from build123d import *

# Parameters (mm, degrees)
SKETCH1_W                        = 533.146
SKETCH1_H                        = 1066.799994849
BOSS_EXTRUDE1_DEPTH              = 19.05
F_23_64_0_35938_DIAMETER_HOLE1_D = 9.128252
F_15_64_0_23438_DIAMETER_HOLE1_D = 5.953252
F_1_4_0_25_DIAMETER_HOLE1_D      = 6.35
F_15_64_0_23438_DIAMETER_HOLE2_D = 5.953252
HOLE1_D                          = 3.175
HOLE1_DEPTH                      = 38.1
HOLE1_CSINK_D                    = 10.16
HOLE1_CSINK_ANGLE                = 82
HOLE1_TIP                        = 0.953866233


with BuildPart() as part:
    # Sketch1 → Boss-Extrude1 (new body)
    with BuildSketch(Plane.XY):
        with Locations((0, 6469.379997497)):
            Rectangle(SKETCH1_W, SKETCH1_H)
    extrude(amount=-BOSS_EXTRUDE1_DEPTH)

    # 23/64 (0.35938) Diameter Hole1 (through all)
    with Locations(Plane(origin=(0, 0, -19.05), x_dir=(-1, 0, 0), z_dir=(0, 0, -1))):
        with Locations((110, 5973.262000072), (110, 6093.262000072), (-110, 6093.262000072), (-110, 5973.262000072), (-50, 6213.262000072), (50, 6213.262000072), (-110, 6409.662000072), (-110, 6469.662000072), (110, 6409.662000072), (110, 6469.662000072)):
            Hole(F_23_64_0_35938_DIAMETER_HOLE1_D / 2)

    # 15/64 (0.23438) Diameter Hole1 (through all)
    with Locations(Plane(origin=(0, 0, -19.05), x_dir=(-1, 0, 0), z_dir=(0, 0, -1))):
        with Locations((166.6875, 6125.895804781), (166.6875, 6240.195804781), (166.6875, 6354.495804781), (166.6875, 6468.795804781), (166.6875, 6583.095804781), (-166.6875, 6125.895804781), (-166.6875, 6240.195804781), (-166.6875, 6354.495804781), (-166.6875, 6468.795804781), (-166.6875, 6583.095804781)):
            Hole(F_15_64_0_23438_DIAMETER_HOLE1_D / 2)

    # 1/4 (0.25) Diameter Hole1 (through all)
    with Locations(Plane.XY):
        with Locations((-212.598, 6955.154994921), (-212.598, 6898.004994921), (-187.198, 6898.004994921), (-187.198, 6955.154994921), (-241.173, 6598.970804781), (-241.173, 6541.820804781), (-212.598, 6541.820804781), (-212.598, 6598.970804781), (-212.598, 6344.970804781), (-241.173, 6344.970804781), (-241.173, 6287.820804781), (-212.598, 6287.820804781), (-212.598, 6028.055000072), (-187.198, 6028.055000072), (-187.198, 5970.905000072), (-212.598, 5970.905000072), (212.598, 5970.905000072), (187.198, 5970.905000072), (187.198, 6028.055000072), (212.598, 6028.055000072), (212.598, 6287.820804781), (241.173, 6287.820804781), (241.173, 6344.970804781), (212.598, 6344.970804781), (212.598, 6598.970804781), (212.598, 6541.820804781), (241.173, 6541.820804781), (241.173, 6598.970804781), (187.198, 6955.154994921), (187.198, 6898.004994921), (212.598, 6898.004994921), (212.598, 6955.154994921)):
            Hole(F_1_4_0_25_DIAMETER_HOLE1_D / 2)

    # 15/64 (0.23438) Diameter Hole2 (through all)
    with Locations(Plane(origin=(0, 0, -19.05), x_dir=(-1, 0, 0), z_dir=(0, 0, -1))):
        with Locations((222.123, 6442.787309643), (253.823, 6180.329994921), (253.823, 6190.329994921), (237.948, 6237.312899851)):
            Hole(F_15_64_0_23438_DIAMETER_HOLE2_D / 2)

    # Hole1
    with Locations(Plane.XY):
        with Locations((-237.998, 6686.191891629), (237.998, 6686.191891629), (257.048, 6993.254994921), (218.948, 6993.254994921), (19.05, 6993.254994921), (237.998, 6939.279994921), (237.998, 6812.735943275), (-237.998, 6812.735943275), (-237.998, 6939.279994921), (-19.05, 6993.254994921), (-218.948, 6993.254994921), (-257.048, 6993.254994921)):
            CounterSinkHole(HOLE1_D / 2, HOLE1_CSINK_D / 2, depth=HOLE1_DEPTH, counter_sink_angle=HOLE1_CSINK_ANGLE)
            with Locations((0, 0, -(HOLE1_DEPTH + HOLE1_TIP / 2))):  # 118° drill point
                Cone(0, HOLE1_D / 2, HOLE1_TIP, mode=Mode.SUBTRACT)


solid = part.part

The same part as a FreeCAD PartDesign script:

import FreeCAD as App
import Part
import Sketcher
Q = App.Units.Quantity


def add_polygon(sketch, points):
    """Adds a closed chain of lines whose ends are joined by coincident constraints."""
    first, n = sketch.GeometryCount, len(points)
    for a, b in zip(points, points[1:] + points[:1]):
        sketch.addGeometry(Part.LineSegment(App.Vector(*a, 0), App.Vector(*b, 0)), False)
    for i in range(n):
        sketch.addConstraint(Sketcher.Constraint("Coincident", first + i, 2, first + (i + 1) % n, 1))

doc = App.newDocument("Part")
body = doc.addObject("PartDesign::Body", "Body")

# Sketch on XY plane
sketch1 = doc.addObject("Sketcher::SketchObject", "Sketch")
body.addObject(sketch1)
sketch1.AttachmentSupport = (doc.XY_Plane, [""])
sketch1.MapMode = "FlatFace"
add_polygon(sketch1, [(-267, 7003), (-267, 5936), (267, 5936), (267, 7003)])  # lines 0-3
sketch1.addConstraint([
    Sketcher.Constraint("Vertical", 0),
    Sketcher.Constraint("Horizontal", 1),
    Sketcher.Constraint("Vertical", 2),
    Sketcher.Constraint("Horizontal", 3),
    Sketcher.Constraint("DistanceX", 1, 1, 1, 2, Q("20.99 in")),
    Sketcher.Constraint("DistanceY", -1, 1, 0, 2, Q("233.7 in")),
    Sketcher.Constraint("DistanceY", -1, 1, 2, 2, Q("275.6999998 in")),
    Sketcher.Constraint("DistanceX", 0, 2, -1, 1, Q("10.495 in")),
])
pad1 = doc.addObject("PartDesign::Pad", "Pad")
body.addObject(pad1)
pad1.Profile = sketch1
pad1.Length = Q("0.75 in")
pad1.Reversed = True

# Sketch on XY plane
sketch2 = doc.addObject("Sketcher::SketchObject", "Sketch001")
body.addObject(sketch2)
sketch2.AttachmentSupport = (doc.XY_Plane, [""])
sketch2.MapMode = "FlatFace"
sketch2.AttachmentOffset = App.Placement(App.Vector(0, 0, -0.75 * 25.4), App.Rotation())
sketch2.addGeometry([
    Part.Circle(App.Vector(-110, 5973.3, 0), App.Vector(0, 0, 1), 4.6),  # 0
    Part.Circle(App.Vector(-110, 6093.3, 0), App.Vector(0, 0, 1), 4.6),  # 1
    Part.Circle(App.Vector(110, 6093.3, 0), App.Vector(0, 0, 1), 4.6),  # 2
    Part.Circle(App.Vector(110, 5973.3, 0), App.Vector(0, 0, 1), 4.6),  # 3
    Part.Circle(App.Vector(50, 6213.3, 0), App.Vector(0, 0, 1), 4.6),  # 4
    Part.Circle(App.Vector(-50, 6213.3, 0), App.Vector(0, 0, 1), 4.6),  # 5
    Part.Circle(App.Vector(110, 6409.7, 0), App.Vector(0, 0, 1), 4.6),  # 6
    Part.Circle(App.Vector(110, 6469.7, 0), App.Vector(0, 0, 1), 4.6),  # 7
    Part.Circle(App.Vector(-110, 6409.7, 0), App.Vector(0, 0, 1), 4.6),  # 8
    Part.Circle(App.Vector(-110, 6469.7, 0), App.Vector(0, 0, 1), 4.6),  # 9
], False)
sketch2.addConstraint([
    Sketcher.Constraint("Equal", 0, 1),
    Sketcher.Constraint("Equal", 1, 2),
    Sketcher.Constraint("Equal", 2, 3),
    Sketcher.Constraint("Equal", 3, 4),
    Sketcher.Constraint("Equal", 4, 5),
    Sketcher.Constraint("Equal", 5, 6),
    Sketcher.Constraint("Equal", 6, 7),
    Sketcher.Constraint("Equal", 7, 8),
    Sketcher.Constraint("Equal", 8, 9),
    Sketcher.Constraint("Symmetric", 1, 3, 2, 3, -2),
    Sketcher.Constraint("Symmetric", 0, 3, 3, 3, -2),
    Sketcher.Constraint("Symmetric", 4, 3, 5, 3, -2),
    Sketcher.Constraint("Symmetric", 6, 3, 8, 3, -2),
    Sketcher.Constraint("Symmetric", 7, 3, 9, 3, -2),
    Sketcher.Constraint("Vertical", 0, 3, 1, 3),
    Sketcher.Constraint("Vertical", 3, 3, 6, 3),
    Sketcher.Constraint("Vertical", 6, 3, 7, 3),
    Sketcher.Constraint("Diameter", 0, 9.128252),
    Sketcher.Constraint("DistanceX", 0, 3, -1, 1, 110.0),
    Sketcher.Constraint("DistanceY", -1, 1, 0, 3, 5973.262),
    Sketcher.Constraint("DistanceY", -1, 1, 1, 3, 6093.262),
    Sketcher.Constraint("DistanceX", -1, 1, 4, 3, 50.0),
    Sketcher.Constraint("DistanceY", -1, 1, 4, 3, 6213.262),
    Sketcher.Constraint("DistanceY", -1, 1, 6, 3, 6409.662),
    Sketcher.Constraint("DistanceY", -1, 1, 7, 3, 6469.662),
])
doc.recompute()
hole = doc.addObject("PartDesign::Hole", "Hole")
body.addObject(hole)
hole.Profile = sketch2
hole.ThreadType = "None"
hole.Diameter = 9.128252
hole.DepthType = "ThroughAll"
hole.Reversed = True

# Sketch on XY plane
sketch3 = doc.addObject("Sketcher::SketchObject", "Sketch002")
body.addObject(sketch3)
sketch3.AttachmentSupport = (doc.XY_Plane, [""])
sketch3.MapMode = "FlatFace"
sketch3.AttachmentOffset = App.Placement(App.Vector(0, 0, -0.75 * 25.4), App.Rotation())
sketch3.addGeometry([
    Part.Circle(App.Vector(-166.7, 6125.9, 0), App.Vector(0, 0, 1), 3),  # 0
    Part.Circle(App.Vector(-166.7, 6240.2, 0), App.Vector(0, 0, 1), 3),  # 1
    Part.Circle(App.Vector(-166.7, 6354.5, 0), App.Vector(0, 0, 1), 3),  # 2
    Part.Circle(App.Vector(-166.7, 6468.8, 0), App.Vector(0, 0, 1), 3),  # 3
    Part.Circle(App.Vector(-166.7, 6583.1, 0), App.Vector(0, 0, 1), 3),  # 4
    Part.Circle(App.Vector(166.7, 6125.9, 0), App.Vector(0, 0, 1), 3),  # 5
    Part.Circle(App.Vector(166.7, 6240.2, 0), App.Vector(0, 0, 1), 3),  # 6
    Part.Circle(App.Vector(166.7, 6354.5, 0), App.Vector(0, 0, 1), 3),  # 7
    Part.Circle(App.Vector(166.7, 6468.8, 0), App.Vector(0, 0, 1), 3),  # 8
    Part.Circle(App.Vector(166.7, 6583.1, 0), App.Vector(0, 0, 1), 3),  # 9
], False)
sketch3.addConstraint([
    Sketcher.Constraint("Equal", 0, 1),
    Sketcher.Constraint("Equal", 1, 2),
    Sketcher.Constraint("Equal", 2, 3),
    Sketcher.Constraint("Equal", 3, 4),
    Sketcher.Constraint("Equal", 4, 5),
    Sketcher.Constraint("Equal", 5, 6),
    Sketcher.Constraint("Equal", 6, 7),
    Sketcher.Constraint("Equal", 7, 8),
    Sketcher.Constraint("Equal", 8, 9),
    Sketcher.Constraint("Symmetric", 0, 3, 5, 3, -2),
    Sketcher.Constraint("Symmetric", 1, 3, 6, 3, -2),
    Sketcher.Constraint("Symmetric", 2, 3, 7, 3, -2),
    Sketcher.Constraint("Symmetric", 3, 3, 8, 3, -2),
    Sketcher.Constraint("Symmetric", 4, 3, 9, 3, -2),
    Sketcher.Constraint("Vertical", 0, 3, 1, 3),
    Sketcher.Constraint("Vertical", 1, 3, 2, 3),
    Sketcher.Constraint("Vertical", 2, 3, 3, 3),
    Sketcher.Constraint("Vertical", 3, 3, 4, 3),
    Sketcher.Constraint("DistanceY", 0, 3, 2, 3, Q("9 in")),
    Sketcher.Constraint("DistanceY", 1, 3, 3, 3, Q("9 in")),
    Sketcher.Constraint("DistanceY", 2, 3, 4, 3, Q("9 in")),
    Sketcher.Constraint("DistanceY", 0, 3, 1, 3, Q("4.5 in")),
    Sketcher.Constraint("DistanceX", 0, 3, -1, 1, Q("6.5625 in")),
    Sketcher.Constraint("DistanceY", -1, 1, 0, 3, Q("241.1770002 in")),
    Sketcher.Constraint("Diameter", 0, 5.953252),
])
doc.recompute()
hole2 = doc.addObject("PartDesign::Hole", "Hole001")
body.addObject(hole2)
hole2.Profile = sketch3
hole2.ThreadType = "None"
hole2.Diameter = 5.953252
hole2.DepthType = "ThroughAll"
hole2.Reversed = True

# Sketch on XY plane
sketch4 = doc.addObject("Sketcher::SketchObject", "Sketch003")
body.addObject(sketch4)
sketch4.AttachmentSupport = (doc.XY_Plane, [""])
sketch4.MapMode = "FlatFace"
sketch4.addGeometry([
    Part.Circle(App.Vector(-212.6, 6955.2, 0), App.Vector(0, 0, 1), 3.2),  # 0
    Part.Circle(App.Vector(-212.6, 6898, 0), App.Vector(0, 0, 1), 3.2),  # 1
    Part.Circle(App.Vector(-187.2, 6898, 0), App.Vector(0, 0, 1), 3.2),  # 2
    Part.Circle(App.Vector(-187.2, 6955.2, 0), App.Vector(0, 0, 1), 3.2),  # 3
    Part.Circle(App.Vector(-241.2, 6599, 0), App.Vector(0, 0, 1), 3.2),  # 4
    Part.Circle(App.Vector(-241.2, 6541.8, 0), App.Vector(0, 0, 1), 3.2),  # 5
    Part.Circle(App.Vector(-212.6, 6541.8, 0), App.Vector(0, 0, 1), 3.2),  # 6
    Part.Circle(App.Vector(-212.6, 6599, 0), App.Vector(0, 0, 1), 3.2),  # 7
    Part.Circle(App.Vector(-212.6, 6345, 0), App.Vector(0, 0, 1), 3.2),  # 8
    Part.Circle(App.Vector(-241.2, 6345, 0), App.Vector(0, 0, 1), 3.2),  # 9
    Part.Circle(App.Vector(-241.2, 6287.8, 0), App.Vector(0, 0, 1), 3.2),  # 10
    Part.Circle(App.Vector(-212.6, 6287.8, 0), App.Vector(0, 0, 1), 3.2),  # 11
    Part.Circle(App.Vector(-212.6, 6028.1, 0), App.Vector(0, 0, 1), 3.2),  # 12
    Part.Circle(App.Vector(-187.2, 6028.1, 0), App.Vector(0, 0, 1), 3.2),  # 13
    Part.Circle(App.Vector(-187.2, 5970.9, 0), App.Vector(0, 0, 1), 3.2),  # 14
    Part.Circle(App.Vector(-212.6, 5970.9, 0), App.Vector(0, 0, 1), 3.2),  # 15
    Part.Circle(App.Vector(212.6, 5970.9, 0), App.Vector(0, 0, 1), 3.2),  # 16
    Part.Circle(App.Vector(187.2, 5970.9, 0), App.Vector(0, 0, 1), 3.2),  # 17
    Part.Circle(App.Vector(187.2, 6028.1, 0), App.Vector(0, 0, 1), 3.2),  # 18
    Part.Circle(App.Vector(212.6, 6028.1, 0), App.Vector(0, 0, 1), 3.2),  # 19
    Part.Circle(App.Vector(212.6, 6287.8, 0), App.Vector(0, 0, 1), 3.2),  # 20
    Part.Circle(App.Vector(241.2, 6287.8, 0), App.Vector(0, 0, 1), 3.2),  # 21
    Part.Circle(App.Vector(241.2, 6345, 0), App.Vector(0, 0, 1), 3.2),  # 22
    Part.Circle(App.Vector(212.6, 6345, 0), App.Vector(0, 0, 1), 3.2),  # 23
    Part.Circle(App.Vector(212.6, 6599, 0), App.Vector(0, 0, 1), 3.2),  # 24
    Part.Circle(App.Vector(212.6, 6541.8, 0), App.Vector(0, 0, 1), 3.2),  # 25
    Part.Circle(App.Vector(241.2, 6541.8, 0), App.Vector(0, 0, 1), 3.2),  # 26
    Part.Circle(App.Vector(241.2, 6599, 0), App.Vector(0, 0, 1), 3.2),  # 27
    Part.Circle(App.Vector(187.2, 6955.2, 0), App.Vector(0, 0, 1), 3.2),  # 28
    Part.Circle(App.Vector(187.2, 6898, 0), App.Vector(0, 0, 1), 3.2),  # 29
    Part.Circle(App.Vector(212.6, 6898, 0), App.Vector(0, 0, 1), 3.2),  # 30
    Part.Circle(App.Vector(212.6, 6955.2, 0), App.Vector(0, 0, 1), 3.2),  # 31
], False)
sketch4.addConstraint([
    Sketcher.Constraint("Equal", 0, 1),
    Sketcher.Constraint("Equal", 1, 2),
    Sketcher.Constraint("Equal", 2, 3),
    Sketcher.Constraint("Equal", 3, 4),
    Sketcher.Constraint("Equal", 4, 5),
    Sketcher.Constraint("Equal", 5, 6),
    Sketcher.Constraint("Equal", 6, 7),
    Sketcher.Constraint("Equal", 7, 8),
    Sketcher.Constraint("Equal", 8, 9),
    Sketcher.Constraint("Equal", 9, 10),
    Sketcher.Constraint("Equal", 10, 11),
    Sketcher.Constraint("Equal", 11, 12),
    Sketcher.Constraint("Equal", 12, 13),
    Sketcher.Constraint("Equal", 13, 14),
    Sketcher.Constraint("Equal", 14, 15),
    Sketcher.Constraint("Equal", 15, 16),
    Sketcher.Constraint("Equal", 16, 17),
    Sketcher.Constraint("Equal", 17, 18),
    Sketcher.Constraint("Equal", 18, 19),
    Sketcher.Constraint("Equal", 19, 20),
    Sketcher.Constraint("Equal", 20, 21),
    Sketcher.Constraint("Equal", 21, 22),
    Sketcher.Constraint("Equal", 22, 23),
    Sketcher.Constraint("Equal", 23, 24),
    Sketcher.Constraint("Equal", 24, 25),
    Sketcher.Constraint("Equal", 25, 26),
    Sketcher.Constraint("Equal", 26, 27),
    Sketcher.Constraint("Equal", 27, 28),
    Sketcher.Constraint("Equal", 28, 29),
    Sketcher.Constraint("Equal", 29, 30),
    Sketcher.Constraint("Equal", 30, 31),
    Sketcher.Constraint("Symmetric", 15, 3, 16, 3, -2),
    Sketcher.Constraint("Symmetric", 14, 3, 17, 3, -2),
    Sketcher.Constraint("Symmetric", 13, 3, 18, 3, -2),
    Sketcher.Constraint("Symmetric", 12, 3, 19, 3, -2),
    Sketcher.Constraint("Symmetric", 11, 3, 20, 3, -2),
    Sketcher.Constraint("Symmetric", 10, 3, 21, 3, -2),
    Sketcher.Constraint("Symmetric", 9, 3, 22, 3, -2),
    Sketcher.Constraint("Symmetric", 8, 3, 23, 3, -2),
    Sketcher.Constraint("Symmetric", 7, 3, 24, 3, -2),
    Sketcher.Constraint("Symmetric", 6, 3, 25, 3, -2),
    Sketcher.Constraint("Symmetric", 5, 3, 26, 3, -2),
    Sketcher.Constraint("Symmetric", 4, 3, 27, 3, -2),
    Sketcher.Constraint("Symmetric", 3, 3, 28, 3, -2),
    Sketcher.Constraint("Symmetric", 2, 3, 29, 3, -2),
    Sketcher.Constraint("Symmetric", 1, 3, 30, 3, -2),
    Sketcher.Constraint("Symmetric", 0, 3, 31, 3, -2),
    Sketcher.Constraint("Horizontal", 1, 3, 2, 3),
    Sketcher.Constraint("Horizontal", 0, 3, 3, 3),
    Sketcher.Constraint("Horizontal", 5, 3, 6, 3),
    Sketcher.Constraint("Horizontal", 4, 3, 7, 3),
    Sketcher.Constraint("Horizontal", 8, 3, 9, 3),
    Sketcher.Constraint("Horizontal", 10, 3, 11, 3),
    Sketcher.Constraint("Horizontal", 12, 3, 13, 3),
    Sketcher.Constraint("Horizontal", 14, 3, 15, 3),
    Sketcher.Constraint("Vertical", 0, 3, 1, 3),
    Sketcher.Constraint("Vertical", 2, 3, 3, 3),
    Sketcher.Constraint("Vertical", 4, 3, 5, 3),
    Sketcher.Constraint("Vertical", 1, 3, 6, 3),
    Sketcher.Constraint("Vertical", 6, 3, 7, 3),
    Sketcher.Constraint("Vertical", 7, 3, 8, 3),
    Sketcher.Constraint("Vertical", 5, 3, 9, 3),
    Sketcher.Constraint("Vertical", 9, 3, 10, 3),
    Sketcher.Constraint("Vertical", 8, 3, 11, 3),
    Sketcher.Constraint("Vertical", 11, 3, 12, 3),
    Sketcher.Constraint("Vertical", 3, 3, 13, 3),
    Sketcher.Constraint("Vertical", 13, 3, 14, 3),
    Sketcher.Constraint("Vertical", 12, 3, 15, 3),
    Sketcher.Constraint("Diameter", 0, Q("0.25 in")),
    Sketcher.Constraint("DistanceX", 1, 3, 2, 3, Q("1 in")),
    Sketcher.Constraint("DistanceY", 8, 3, 7, 3, Q("10 in")),
    Sketcher.Constraint("DistanceY", 10, 3, 5, 3, Q("10 in")),
    Sketcher.Constraint("DistanceX", 0, 3, -1, 1, Q("8.37 in")),
    Sketcher.Constraint("DistanceY", 1, 3, 0, 3, Q("2.25 in")),
    Sketcher.Constraint("DistanceY", 5, 3, 4, 3, Q("2.25 in")),
    Sketcher.Constraint("DistanceY", 14, 3, 13, 3, Q("2.25 in")),
    Sketcher.Constraint("DistanceY", -1, 1, 0, 3, Q("273.8249998 in")),
    Sketcher.Constraint("DistanceX", 4, 3, -1, 1, Q("9.495 in")),
    Sketcher.Constraint("DistanceY", -1, 1, 4, 3, Q("259.8020002 in")),
    Sketcher.Constraint("DistanceY", -1, 1, 12, 3, Q("237.325 in")),
])
doc.recompute()
hole3 = doc.addObject("PartDesign::Hole", "Hole002")
body.addObject(hole3)
hole3.Profile = sketch4
hole3.ThreadType = "None"
hole3.Diameter = Q("0.25 in")
hole3.DepthType = "ThroughAll"

# Sketch on XY plane
sketch5 = doc.addObject("Sketcher::SketchObject", "Sketch004")
body.addObject(sketch5)
sketch5.AttachmentSupport = (doc.XY_Plane, [""])
sketch5.MapMode = "FlatFace"
sketch5.AttachmentOffset = App.Placement(App.Vector(0, 0, -0.75 * 25.4), App.Rotation())
sketch5.addGeometry([
    Part.Circle(App.Vector(-222.1, 6442.8, 0), App.Vector(0, 0, 1), 3),
    Part.Circle(App.Vector(-253.8, 6180.3, 0), App.Vector(0, 0, 1), 3),
    Part.Circle(App.Vector(-253.8, 6190.3, 0), App.Vector(0, 0, 1), 3),
    Part.Circle(App.Vector(-237.9, 6237.3, 0), App.Vector(0, 0, 1), 3),
], False)
sketch5.addConstraint([
    Sketcher.Constraint("Equal", 0, 1),
    Sketcher.Constraint("Equal", 1, 2),
    Sketcher.Constraint("Equal", 2, 3),
    Sketcher.Constraint("Vertical", 1, 3, 2, 3),
    Sketcher.Constraint("DistanceX", 0, 3, -1, 1, Q("8.745 in")),
    Sketcher.Constraint("DistanceX", 2, 3, 3, 3, Q("0.625 in")),
    Sketcher.Constraint("Diameter", 0, 5.953252),
    Sketcher.Constraint("DistanceY", -1, 1, 3, 3, Q("245.5635 in")),
    Sketcher.Constraint("DistanceX", 1, 3, -1, 1, 253.823),
    Sketcher.Constraint("DistanceY", 1, 3, 2, 3, 10.0),
    Sketcher.Constraint("DistanceY", -1, 1, 0, 3, 6442.78731),
    Sketcher.Constraint("DistanceY", -1, 1, 1, 3, 6180.329995),
])
doc.recompute()
hole4 = doc.addObject("PartDesign::Hole", "Hole003")
body.addObject(hole4)
hole4.Profile = sketch5
hole4.ThreadType = "None"
hole4.Diameter = 5.953252
hole4.DepthType = "ThroughAll"
hole4.Reversed = True

# Sketch on XY plane
sketch6 = doc.addObject("Sketcher::SketchObject", "Sketch005")
body.addObject(sketch6)
sketch6.AttachmentSupport = (doc.XY_Plane, [""])
sketch6.MapMode = "FlatFace"
sketch6.addGeometry([
    Part.Circle(App.Vector(-238, 6686.2, 0), App.Vector(0, 0, 1), 1.6),  # 0
    Part.Circle(App.Vector(238, 6686.2, 0), App.Vector(0, 0, 1), 1.6),  # 1
    Part.Circle(App.Vector(257, 6993.3, 0), App.Vector(0, 0, 1), 1.6),  # 2
    Part.Circle(App.Vector(218.9, 6993.3, 0), App.Vector(0, 0, 1), 1.6),  # 3
    Part.Circle(App.Vector(19.1, 6993.3, 0), App.Vector(0, 0, 1), 1.6),  # 4
    Part.Circle(App.Vector(238, 6939.3, 0), App.Vector(0, 0, 1), 1.6),  # 5
    Part.Circle(App.Vector(238, 6812.7, 0), App.Vector(0, 0, 1), 1.6),  # 6
    Part.Circle(App.Vector(-238, 6812.7, 0), App.Vector(0, 0, 1), 1.6),  # 7
    Part.Circle(App.Vector(-238, 6939.3, 0), App.Vector(0, 0, 1), 1.6),  # 8
    Part.Circle(App.Vector(-19.1, 6993.3, 0), App.Vector(0, 0, 1), 1.6),  # 9
    Part.Circle(App.Vector(-218.9, 6993.3, 0), App.Vector(0, 0, 1), 1.6),  # 10
    Part.Circle(App.Vector(-257, 6993.3, 0), App.Vector(0, 0, 1), 1.6),  # 11
], False)
sketch6.addConstraint([
    Sketcher.Constraint("Equal", 0, 1),
    Sketcher.Constraint("Equal", 1, 2),
    Sketcher.Constraint("Equal", 2, 3),
    Sketcher.Constraint("Equal", 3, 4),
    Sketcher.Constraint("Equal", 4, 5),
    Sketcher.Constraint("Equal", 5, 6),
    Sketcher.Constraint("Equal", 6, 7),
    Sketcher.Constraint("Equal", 7, 8),
    Sketcher.Constraint("Equal", 8, 9),
    Sketcher.Constraint("Equal", 9, 10),
    Sketcher.Constraint("Equal", 10, 11),
    Sketcher.Constraint("Symmetric", 0, 3, 1, 3, -2),
    Sketcher.Constraint("Symmetric", 6, 3, 7, 3, -2),
    Sketcher.Constraint("Symmetric", 5, 3, 8, 3, -2),
    Sketcher.Constraint("Symmetric", 4, 3, 9, 3, -2),
    Sketcher.Constraint("Symmetric", 3, 3, 10, 3, -2),
    Sketcher.Constraint("Symmetric", 2, 3, 11, 3, -2),
    Sketcher.Constraint("Horizontal", 2, 3, 3, 3),
    Sketcher.Constraint("Horizontal", 3, 3, 4, 3),
    Sketcher.Constraint("Vertical", 1, 3, 5, 3),
    Sketcher.Constraint("Vertical", 5, 3, 6, 3),
    Sketcher.Constraint("Diameter", 0, Q("0.125 in")),
    Sketcher.Constraint("DistanceY", -1, 1, 5, 3, Q("273.1999998 in")),
    Sketcher.Constraint("DistanceX", 3, 3, 2, 3, Q("1.5 in")),
    Sketcher.Constraint("DistanceX", 9, 3, 4, 3, Q("1.5 in")),
    Sketcher.Constraint("DistanceX", 0, 3, -1, 1, Q("9.37 in")),
    Sketcher.Constraint("DistanceX", -1, 1, 2, 3, Q("10.12 in")),
    Sketcher.Constraint("DistanceY", -1, 1, 2, 3, Q("275.3249998 in")),
    Sketcher.Constraint("DistanceY", -1, 1, 0, 3, 6686.191892),
    Sketcher.Constraint("DistanceY", 1, 3, 6, 3, 126.544052),
])
doc.recompute()
hole5 = doc.addObject("PartDesign::Hole", "Hole004")
body.addObject(hole5)
hole5.Profile = sketch6
hole5.ThreadType = "None"
hole5.Diameter = Q("0.125 in")
hole5.DepthType = "Dimension"
hole5.Depth = Q("1.5 in")
hole5.DrillPoint = "Angled"
hole5.DrillPointAngle = 118
hole5.HoleCutType = "Countersink"
hole5.HoleCutDiameter = Q("0.4 in")
hole5.HoleCutCountersinkAngle = 82

doc.recompute()
